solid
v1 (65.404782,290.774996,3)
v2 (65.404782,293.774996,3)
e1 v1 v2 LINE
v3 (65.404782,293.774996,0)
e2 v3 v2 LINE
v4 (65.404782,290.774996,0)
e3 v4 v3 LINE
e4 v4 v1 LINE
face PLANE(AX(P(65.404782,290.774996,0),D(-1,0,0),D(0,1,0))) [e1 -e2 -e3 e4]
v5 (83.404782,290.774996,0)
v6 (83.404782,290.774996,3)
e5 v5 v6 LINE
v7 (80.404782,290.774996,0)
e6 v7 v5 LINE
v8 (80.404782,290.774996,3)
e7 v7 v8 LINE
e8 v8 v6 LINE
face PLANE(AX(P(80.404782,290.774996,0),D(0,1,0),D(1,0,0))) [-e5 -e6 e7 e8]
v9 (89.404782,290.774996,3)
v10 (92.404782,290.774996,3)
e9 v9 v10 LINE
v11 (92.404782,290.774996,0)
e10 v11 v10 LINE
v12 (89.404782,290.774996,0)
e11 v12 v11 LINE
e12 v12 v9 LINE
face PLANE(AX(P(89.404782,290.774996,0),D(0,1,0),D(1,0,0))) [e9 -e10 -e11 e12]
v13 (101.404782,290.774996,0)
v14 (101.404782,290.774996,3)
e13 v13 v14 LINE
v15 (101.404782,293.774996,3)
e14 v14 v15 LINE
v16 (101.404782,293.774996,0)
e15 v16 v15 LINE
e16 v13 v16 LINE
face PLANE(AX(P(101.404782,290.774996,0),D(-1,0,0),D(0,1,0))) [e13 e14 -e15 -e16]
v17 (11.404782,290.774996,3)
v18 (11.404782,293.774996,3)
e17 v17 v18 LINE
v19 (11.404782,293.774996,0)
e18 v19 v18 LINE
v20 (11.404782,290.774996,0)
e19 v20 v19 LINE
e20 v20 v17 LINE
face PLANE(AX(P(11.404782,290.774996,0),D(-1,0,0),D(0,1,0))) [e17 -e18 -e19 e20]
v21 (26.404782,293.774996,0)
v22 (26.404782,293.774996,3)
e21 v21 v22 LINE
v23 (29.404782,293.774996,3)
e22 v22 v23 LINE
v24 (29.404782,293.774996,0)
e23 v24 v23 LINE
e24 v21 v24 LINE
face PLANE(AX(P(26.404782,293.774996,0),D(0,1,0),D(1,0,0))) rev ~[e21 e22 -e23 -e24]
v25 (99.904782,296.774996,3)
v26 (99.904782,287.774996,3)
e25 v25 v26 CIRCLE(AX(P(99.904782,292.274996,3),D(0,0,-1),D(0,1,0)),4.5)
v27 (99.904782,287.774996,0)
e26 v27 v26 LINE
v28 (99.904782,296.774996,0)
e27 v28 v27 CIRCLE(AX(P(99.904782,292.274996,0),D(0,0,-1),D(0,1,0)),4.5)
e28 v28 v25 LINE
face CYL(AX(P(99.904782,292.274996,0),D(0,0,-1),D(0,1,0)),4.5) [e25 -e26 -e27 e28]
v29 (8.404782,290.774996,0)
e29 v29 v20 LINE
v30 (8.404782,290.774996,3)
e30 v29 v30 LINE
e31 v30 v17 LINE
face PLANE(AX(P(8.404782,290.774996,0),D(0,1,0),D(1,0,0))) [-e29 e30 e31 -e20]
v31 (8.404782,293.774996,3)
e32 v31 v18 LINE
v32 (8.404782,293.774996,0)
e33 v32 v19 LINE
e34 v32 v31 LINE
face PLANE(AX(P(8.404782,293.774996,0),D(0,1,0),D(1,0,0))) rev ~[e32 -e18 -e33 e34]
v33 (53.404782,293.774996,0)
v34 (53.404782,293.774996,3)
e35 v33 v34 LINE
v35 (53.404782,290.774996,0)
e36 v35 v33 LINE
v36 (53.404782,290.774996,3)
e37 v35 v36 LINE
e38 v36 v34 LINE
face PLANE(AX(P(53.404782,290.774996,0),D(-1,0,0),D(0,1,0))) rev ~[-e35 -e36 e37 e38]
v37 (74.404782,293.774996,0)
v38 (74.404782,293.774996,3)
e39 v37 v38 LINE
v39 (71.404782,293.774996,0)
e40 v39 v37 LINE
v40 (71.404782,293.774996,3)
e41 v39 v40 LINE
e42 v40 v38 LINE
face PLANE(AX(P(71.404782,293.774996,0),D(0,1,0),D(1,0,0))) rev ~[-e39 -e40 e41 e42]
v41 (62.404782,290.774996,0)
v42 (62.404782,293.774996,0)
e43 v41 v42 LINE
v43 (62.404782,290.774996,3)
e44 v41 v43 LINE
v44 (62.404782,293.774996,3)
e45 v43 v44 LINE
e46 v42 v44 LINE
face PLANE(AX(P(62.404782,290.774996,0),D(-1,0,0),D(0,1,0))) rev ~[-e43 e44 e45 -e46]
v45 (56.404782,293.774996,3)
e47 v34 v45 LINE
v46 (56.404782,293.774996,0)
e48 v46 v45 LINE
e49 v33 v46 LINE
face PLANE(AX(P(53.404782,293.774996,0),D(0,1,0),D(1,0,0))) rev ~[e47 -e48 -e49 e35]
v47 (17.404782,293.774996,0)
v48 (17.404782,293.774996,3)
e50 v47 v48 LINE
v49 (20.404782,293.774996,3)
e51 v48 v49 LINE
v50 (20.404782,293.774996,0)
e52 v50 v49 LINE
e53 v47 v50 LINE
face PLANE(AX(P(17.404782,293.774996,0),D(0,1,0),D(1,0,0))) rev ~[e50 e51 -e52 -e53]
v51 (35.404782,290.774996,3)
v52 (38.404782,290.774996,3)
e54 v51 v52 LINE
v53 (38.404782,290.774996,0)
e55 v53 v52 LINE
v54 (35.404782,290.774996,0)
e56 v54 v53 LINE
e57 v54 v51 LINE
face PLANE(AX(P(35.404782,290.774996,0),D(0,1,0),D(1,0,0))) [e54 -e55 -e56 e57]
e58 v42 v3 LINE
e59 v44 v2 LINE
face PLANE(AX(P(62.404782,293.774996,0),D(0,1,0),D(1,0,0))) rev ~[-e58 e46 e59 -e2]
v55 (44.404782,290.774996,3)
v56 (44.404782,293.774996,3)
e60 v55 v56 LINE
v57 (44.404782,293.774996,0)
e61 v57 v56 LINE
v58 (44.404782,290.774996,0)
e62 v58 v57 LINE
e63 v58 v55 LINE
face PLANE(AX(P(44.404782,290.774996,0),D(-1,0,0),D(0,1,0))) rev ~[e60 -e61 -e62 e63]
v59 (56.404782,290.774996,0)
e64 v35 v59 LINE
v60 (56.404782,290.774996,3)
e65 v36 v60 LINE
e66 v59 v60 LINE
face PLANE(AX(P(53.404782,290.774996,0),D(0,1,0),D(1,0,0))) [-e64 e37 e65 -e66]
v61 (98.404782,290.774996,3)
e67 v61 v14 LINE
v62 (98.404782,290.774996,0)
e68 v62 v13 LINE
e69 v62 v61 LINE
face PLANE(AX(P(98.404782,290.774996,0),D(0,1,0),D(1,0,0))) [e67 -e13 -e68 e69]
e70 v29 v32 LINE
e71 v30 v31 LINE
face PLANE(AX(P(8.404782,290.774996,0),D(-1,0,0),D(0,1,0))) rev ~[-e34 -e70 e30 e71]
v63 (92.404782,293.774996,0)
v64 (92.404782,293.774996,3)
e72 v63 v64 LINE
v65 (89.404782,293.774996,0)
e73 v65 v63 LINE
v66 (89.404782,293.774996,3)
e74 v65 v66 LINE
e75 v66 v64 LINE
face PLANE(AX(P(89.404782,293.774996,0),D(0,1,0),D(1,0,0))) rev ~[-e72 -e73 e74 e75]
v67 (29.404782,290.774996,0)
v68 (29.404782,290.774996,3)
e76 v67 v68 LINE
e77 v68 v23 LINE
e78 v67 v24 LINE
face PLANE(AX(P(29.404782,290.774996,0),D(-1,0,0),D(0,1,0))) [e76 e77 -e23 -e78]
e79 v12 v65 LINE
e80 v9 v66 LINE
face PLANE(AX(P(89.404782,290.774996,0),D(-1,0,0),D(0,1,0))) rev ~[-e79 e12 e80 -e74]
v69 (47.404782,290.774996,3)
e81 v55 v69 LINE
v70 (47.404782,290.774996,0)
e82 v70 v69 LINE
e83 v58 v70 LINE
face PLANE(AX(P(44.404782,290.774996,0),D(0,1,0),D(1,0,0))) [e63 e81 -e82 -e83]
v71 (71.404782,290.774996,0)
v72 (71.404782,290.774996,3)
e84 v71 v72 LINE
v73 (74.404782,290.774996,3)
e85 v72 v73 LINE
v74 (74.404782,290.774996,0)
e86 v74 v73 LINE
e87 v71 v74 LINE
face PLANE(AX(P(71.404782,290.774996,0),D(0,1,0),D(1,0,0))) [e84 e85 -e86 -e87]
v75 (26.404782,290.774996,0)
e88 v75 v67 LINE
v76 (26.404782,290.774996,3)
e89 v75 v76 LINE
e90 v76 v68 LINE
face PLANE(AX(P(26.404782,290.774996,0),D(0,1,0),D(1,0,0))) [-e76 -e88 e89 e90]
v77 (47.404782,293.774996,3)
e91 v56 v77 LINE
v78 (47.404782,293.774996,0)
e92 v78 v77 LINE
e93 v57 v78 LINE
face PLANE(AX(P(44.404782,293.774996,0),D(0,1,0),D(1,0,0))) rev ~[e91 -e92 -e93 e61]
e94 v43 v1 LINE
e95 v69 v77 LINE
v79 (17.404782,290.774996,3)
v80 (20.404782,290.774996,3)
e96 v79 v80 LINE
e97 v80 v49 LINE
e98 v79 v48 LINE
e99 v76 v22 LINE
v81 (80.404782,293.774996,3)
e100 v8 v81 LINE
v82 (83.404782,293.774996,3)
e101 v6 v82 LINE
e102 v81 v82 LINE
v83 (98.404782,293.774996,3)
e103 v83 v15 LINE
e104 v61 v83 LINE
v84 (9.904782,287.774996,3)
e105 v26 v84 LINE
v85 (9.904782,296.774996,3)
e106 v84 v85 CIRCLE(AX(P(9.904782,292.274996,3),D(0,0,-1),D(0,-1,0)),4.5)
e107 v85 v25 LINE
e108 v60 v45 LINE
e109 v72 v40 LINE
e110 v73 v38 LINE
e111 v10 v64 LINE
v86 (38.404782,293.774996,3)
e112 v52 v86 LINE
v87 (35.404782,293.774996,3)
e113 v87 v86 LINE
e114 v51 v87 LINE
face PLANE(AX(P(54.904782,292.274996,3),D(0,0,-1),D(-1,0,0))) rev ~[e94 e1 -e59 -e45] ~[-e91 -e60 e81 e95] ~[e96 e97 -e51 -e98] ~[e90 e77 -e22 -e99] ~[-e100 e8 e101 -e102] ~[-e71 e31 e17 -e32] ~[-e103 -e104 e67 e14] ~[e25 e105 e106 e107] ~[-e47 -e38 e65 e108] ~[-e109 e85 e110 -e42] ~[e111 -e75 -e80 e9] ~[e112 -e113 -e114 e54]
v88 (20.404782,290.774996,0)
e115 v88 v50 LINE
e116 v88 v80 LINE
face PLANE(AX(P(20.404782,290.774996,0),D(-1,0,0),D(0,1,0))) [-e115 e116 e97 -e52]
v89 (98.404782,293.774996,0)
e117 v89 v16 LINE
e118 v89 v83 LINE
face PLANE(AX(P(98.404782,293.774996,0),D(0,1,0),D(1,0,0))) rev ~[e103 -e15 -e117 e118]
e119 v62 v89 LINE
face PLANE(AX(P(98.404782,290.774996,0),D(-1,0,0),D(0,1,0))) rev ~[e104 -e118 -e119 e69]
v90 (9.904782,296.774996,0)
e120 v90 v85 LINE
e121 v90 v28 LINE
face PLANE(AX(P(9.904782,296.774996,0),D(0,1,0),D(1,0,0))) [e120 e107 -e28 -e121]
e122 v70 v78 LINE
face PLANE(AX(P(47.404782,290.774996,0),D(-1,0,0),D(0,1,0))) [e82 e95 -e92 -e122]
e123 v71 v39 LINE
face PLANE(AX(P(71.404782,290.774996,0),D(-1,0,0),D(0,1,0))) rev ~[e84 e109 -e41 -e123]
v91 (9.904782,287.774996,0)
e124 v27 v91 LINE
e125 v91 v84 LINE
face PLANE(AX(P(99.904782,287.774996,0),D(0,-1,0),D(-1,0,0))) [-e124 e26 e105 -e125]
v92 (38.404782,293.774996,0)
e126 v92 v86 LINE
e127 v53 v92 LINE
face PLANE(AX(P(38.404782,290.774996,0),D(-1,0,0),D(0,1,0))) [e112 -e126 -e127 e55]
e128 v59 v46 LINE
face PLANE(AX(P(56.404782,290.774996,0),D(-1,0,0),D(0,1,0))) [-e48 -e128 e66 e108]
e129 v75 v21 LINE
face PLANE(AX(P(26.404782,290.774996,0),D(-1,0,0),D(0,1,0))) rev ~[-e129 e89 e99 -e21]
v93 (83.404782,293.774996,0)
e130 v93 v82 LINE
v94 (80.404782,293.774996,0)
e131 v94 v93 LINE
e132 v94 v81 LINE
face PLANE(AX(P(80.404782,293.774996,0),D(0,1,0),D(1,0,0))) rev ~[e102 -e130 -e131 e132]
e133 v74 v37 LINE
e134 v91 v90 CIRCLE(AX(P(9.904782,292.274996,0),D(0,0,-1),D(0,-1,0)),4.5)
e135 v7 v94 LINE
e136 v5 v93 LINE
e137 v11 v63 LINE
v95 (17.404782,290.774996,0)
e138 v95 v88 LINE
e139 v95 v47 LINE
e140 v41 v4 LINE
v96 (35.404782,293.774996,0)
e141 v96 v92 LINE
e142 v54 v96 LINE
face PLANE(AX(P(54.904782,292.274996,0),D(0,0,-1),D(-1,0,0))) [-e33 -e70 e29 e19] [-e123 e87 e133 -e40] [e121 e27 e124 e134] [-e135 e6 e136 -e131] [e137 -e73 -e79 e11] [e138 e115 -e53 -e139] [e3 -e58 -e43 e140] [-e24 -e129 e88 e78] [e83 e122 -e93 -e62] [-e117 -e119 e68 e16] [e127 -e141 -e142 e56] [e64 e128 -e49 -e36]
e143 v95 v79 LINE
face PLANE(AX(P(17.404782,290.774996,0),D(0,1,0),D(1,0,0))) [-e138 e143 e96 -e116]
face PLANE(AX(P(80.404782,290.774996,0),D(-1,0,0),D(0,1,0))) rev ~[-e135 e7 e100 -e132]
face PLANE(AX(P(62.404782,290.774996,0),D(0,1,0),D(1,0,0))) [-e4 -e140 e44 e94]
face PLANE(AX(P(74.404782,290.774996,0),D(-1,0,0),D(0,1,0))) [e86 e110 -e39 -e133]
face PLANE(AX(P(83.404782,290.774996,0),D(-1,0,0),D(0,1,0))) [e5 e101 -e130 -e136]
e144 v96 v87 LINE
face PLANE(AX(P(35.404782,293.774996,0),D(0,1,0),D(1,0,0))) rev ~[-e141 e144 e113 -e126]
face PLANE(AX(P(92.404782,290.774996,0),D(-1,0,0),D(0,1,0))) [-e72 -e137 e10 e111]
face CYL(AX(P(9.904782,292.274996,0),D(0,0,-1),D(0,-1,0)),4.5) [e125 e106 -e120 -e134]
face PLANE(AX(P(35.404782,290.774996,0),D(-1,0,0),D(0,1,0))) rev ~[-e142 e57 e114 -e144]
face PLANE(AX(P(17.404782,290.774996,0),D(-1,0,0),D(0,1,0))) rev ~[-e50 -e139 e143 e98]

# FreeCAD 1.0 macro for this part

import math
import FreeCAD as App
import Part
import Sketcher
from FreeCAD import Vector
Q = App.Units.Quantity


def add_polygon(sketch, points):
    """Adds a closed chain of lines whose ends are joined by coincident constraints."""
    first, n = sketch.GeometryCount, len(points)
    for a, b in zip(points, points[1:] + points[:1]):
        sketch.addGeometry(Part.LineSegment(App.Vector(*a, 0), App.Vector(*b, 0)), False)
    for i in range(n):
        sketch.addConstraint(Sketcher.Constraint("Coincident", first + i, 2, first + (i + 1) % n, 1))

doc = App.newDocument("Part")
body = doc.addObject("PartDesign::Body", "Body")

# Sketch on XY plane
sketch1 = doc.addObject("Sketcher::SketchObject", "Sketch")
body.addObject(sketch1)
sketch1.AttachmentSupport = (doc.XY_Plane, [""])
sketch1.MapMode = "FlatFace"
sketch1.addGeometry(Part.LineSegment(Vector(99.9, 296.8, 0), Vector(9.9, 296.8, 0)), False)  # 0
sketch1.addGeometry(Part.ArcOfCircle(Part.Circle(Vector(9.9, 292.3, 0), Vector(0, 0, 1), 4.5), math.radians(90), math.radians(270)), False)  # 1
sketch1.addGeometry(Part.LineSegment(Vector(9.9, 287.8, 0), Vector(99.9, 287.8, 0)), False)  # 2
sketch1.addGeometry(Part.ArcOfCircle(Part.Circle(Vector(99.9, 292.3, 0), Vector(0, 0, 1), 4.5), math.radians(-90), math.radians(90)), False)  # 3
add_polygon(sketch1, [(98.4, 290.8), (98.4, 293.8), (101.4, 293.8), (101.4, 290.8)])  # lines 4-7
add_polygon(sketch1, [(89.4, 290.8), (89.4, 293.8), (92.4, 293.8), (92.4, 290.8)])  # lines 8-11
add_polygon(sketch1, [(80.4, 290.8), (80.4, 293.8), (83.4, 293.8), (83.4, 290.8)])  # lines 12-15
add_polygon(sketch1, [(71.4, 290.8), (71.4, 293.8), (74.4, 293.8), (74.4, 290.8)])  # lines 16-19
add_polygon(sketch1, [(62.4, 290.8), (62.4, 293.8), (65.4, 293.8), (65.4, 290.8)])  # lines 20-23
add_polygon(sketch1, [(53.4, 290.8), (53.4, 293.8), (56.4, 293.8), (56.4, 290.8)])  # lines 24-27
add_polygon(sketch1, [(44.4, 290.8), (44.4, 293.8), (47.4, 293.8), (47.4, 290.8)])  # lines 28-31
add_polygon(sketch1, [(35.4, 290.8), (35.4, 293.8), (38.4, 293.8), (38.4, 290.8)])  # lines 32-35
add_polygon(sketch1, [(26.4, 290.8), (26.4, 293.8), (29.4, 293.8), (29.4, 290.8)])  # lines 36-39
add_polygon(sketch1, [(17.4, 290.8), (17.4, 293.8), (20.4, 293.8), (20.4, 290.8)])  # lines 40-43
add_polygon(sketch1, [(8.4, 290.8), (8.4, 293.8), (11.4, 293.8), (11.4, 290.8)])  # lines 44-47
sketch1.addConstraint(Sketcher.Constraint("Tangent", 0, 2, 1, 1))
sketch1.addConstraint(Sketcher.Constraint("Tangent", 1, 2, 2, 1))
sketch1.addConstraint(Sketcher.Constraint("Tangent", 2, 2, 3, 1))
sketch1.addConstraint(Sketcher.Constraint("Tangent", 3, 2, 0, 1))
sketch1.addConstraint(Sketcher.Constraint("Horizontal", 0))
sketch1.addConstraint(Sketcher.Constraint("Horizontal", 2))
sketch1.addConstraint(Sketcher.Constraint("Vertical", 4))
sketch1.addConstraint(Sketcher.Constraint("Horizontal", 5))
sketch1.addConstraint(Sketcher.Constraint("Vertical", 6))
sketch1.addConstraint(Sketcher.Constraint("Horizontal", 7))
sketch1.addConstraint(Sketcher.Constraint("Vertical", 8))
sketch1.addConstraint(Sketcher.Constraint("Horizontal", 9))
sketch1.addConstraint(Sketcher.Constraint("Vertical", 10))
sketch1.addConstraint(Sketcher.Constraint("Horizontal", 11))
sketch1.addConstraint(Sketcher.Constraint("Vertical", 12))
sketch1.addConstraint(Sketcher.Constraint("Horizontal", 13))
sketch1.addConstraint(Sketcher.Constraint("Vertical", 14))
sketch1.addConstraint(Sketcher.Constraint("Horizontal", 15))
sketch1.addConstraint(Sketcher.Constraint("Vertical", 16))
sketch1.addConstraint(Sketcher.Constraint("Horizontal", 17))
sketch1.addConstraint(Sketcher.Constraint("Vertical", 18))
sketch1.addConstraint(Sketcher.Constraint("Horizontal", 19))
sketch1.addConstraint(Sketcher.Constraint("Vertical", 20))
sketch1.addConstraint(Sketcher.Constraint("Horizontal", 21))
sketch1.addConstraint(Sketcher.Constraint("Vertical", 22))
sketch1.addConstraint(Sketcher.Constraint("Horizontal", 23))
sketch1.addConstraint(Sketcher.Constraint("Vertical", 24))
sketch1.addConstraint(Sketcher.Constraint("Horizontal", 25))
sketch1.addConstraint(Sketcher.Constraint("Vertical", 26))
sketch1.addConstraint(Sketcher.Constraint("Horizontal", 27))
sketch1.addConstraint(Sketcher.Constraint("Vertical", 28))
sketch1.addConstraint(Sketcher.Constraint("Horizontal", 29))
sketch1.addConstraint(Sketcher.Constraint("Vertical", 30))
sketch1.addConstraint(Sketcher.Constraint("Horizontal", 31))
sketch1.addConstraint(Sketcher.Constraint("Vertical", 32))
sketch1.addConstraint(Sketcher.Constraint("Horizontal", 33))
sketch1.addConstraint(Sketcher.Constraint("Vertical", 34))
sketch1.addConstraint(Sketcher.Constraint("Horizontal", 35))
sketch1.addConstraint(Sketcher.Constraint("Vertical", 36))
sketch1.addConstraint(Sketcher.Constraint("Horizontal", 37))
sketch1.addConstraint(Sketcher.Constraint("Vertical", 38))
sketch1.addConstraint(Sketcher.Constraint("Horizontal", 39))
sketch1.addConstraint(Sketcher.Constraint("Vertical", 40))
sketch1.addConstraint(Sketcher.Constraint("Horizontal", 41))
sketch1.addConstraint(Sketcher.Constraint("Vertical", 42))
sketch1.addConstraint(Sketcher.Constraint("Horizontal", 43))
sketch1.addConstraint(Sketcher.Constraint("Vertical", 44))
sketch1.addConstraint(Sketcher.Constraint("Horizontal", 45))
sketch1.addConstraint(Sketcher.Constraint("Vertical", 46))
sketch1.addConstraint(Sketcher.Constraint("Horizontal", 47))
sketch1.addConstraint(Sketcher.Constraint("Horizontal", 5, 2, 8, 2))
sketch1.addConstraint(Sketcher.Constraint("Horizontal", 7, 2, 10, 2))
sketch1.addConstraint(Sketcher.Constraint("Horizontal", 9, 2, 12, 2))
sketch1.addConstraint(Sketcher.Constraint("Horizontal", 11, 2, 14, 2))
sketch1.addConstraint(Sketcher.Constraint("Horizontal", 13, 2, 16, 2))
sketch1.addConstraint(Sketcher.Constraint("Horizontal", 15, 2, 18, 2))
sketch1.addConstraint(Sketcher.Constraint("Horizontal", 17, 2, 20, 2))
sketch1.addConstraint(Sketcher.Constraint("Horizontal", 19, 2, 22, 2))
sketch1.addConstraint(Sketcher.Constraint("Horizontal", 21, 2, 24, 2))
sketch1.addConstraint(Sketcher.Constraint("Horizontal", 23, 2, 26, 2))
sketch1.addConstraint(Sketcher.Constraint("Horizontal", 25, 2, 28, 2))
sketch1.addConstraint(Sketcher.Constraint("Horizontal", 27, 2, 30, 2))
sketch1.addConstraint(Sketcher.Constraint("Horizontal", 29, 2, 32, 2))
sketch1.addConstraint(Sketcher.Constraint("Horizontal", 31, 2, 34, 2))
sketch1.addConstraint(Sketcher.Constraint("Horizontal", 33, 2, 36, 2))
sketch1.addConstraint(Sketcher.Constraint("Horizontal", 35, 2, 38, 2))
sketch1.addConstraint(Sketcher.Constraint("Horizontal", 37, 2, 40, 2))
sketch1.addConstraint(Sketcher.Constraint("Horizontal", 39, 2, 42, 2))
sketch1.addConstraint(Sketcher.Constraint("Horizontal", 41, 2, 44, 2))
sketch1.addConstraint(Sketcher.Constraint("Horizontal", 43, 2, 46, 2))
sketch1.addConstraint(Sketcher.Constraint("Equal", 7, 9))
sketch1.addConstraint(Sketcher.Constraint("Equal", 11, 13))
sketch1.addConstraint(Sketcher.Constraint("Equal", 15, 17))
sketch1.addConstraint(Sketcher.Constraint("Equal", 19, 21))
sketch1.addConstraint(Sketcher.Constraint("Equal", 23, 25))
sketch1.addConstraint(Sketcher.Constraint("Equal", 27, 29))
sketch1.addConstraint(Sketcher.Constraint("Equal", 31, 33))
sketch1.addConstraint(Sketcher.Constraint("Equal", 35, 37))
sketch1.addConstraint(Sketcher.Constraint("Equal", 39, 41))
sketch1.addConstraint(Sketcher.Constraint("Equal", 43, 45))
sketch1.addConstraint(Sketcher.Constraint("Equal", 47, 4))
sketch1.addConstraint(Sketcher.Constraint("Radius", 1, Q("4.5 mm")))
sketch1.addConstraint(Sketcher.Constraint("DistanceX", 0, 2, 0, 1, Q("90 mm")))
sketch1.addConstraint(Sketcher.Constraint("DistanceX", 5, 1, 5, 2, Q("3 mm")))
sketch1.addConstraint(Sketcher.Constraint("DistanceY", 4, 2, 3, 2, Q("3 mm")))
sketch1.addConstraint(Sketcher.Constraint("DistanceX", 8, 2, 4, 2, Q("9 mm")))
sketch1.addConstraint(Sketcher.Constraint("DistanceX", 12, 2, 8, 2, Q("9 mm")))
sketch1.addConstraint(Sketcher.Constraint("DistanceX", 16, 2, 12, 2, Q("9 mm")))
sketch1.addConstraint(Sketcher.Constraint("DistanceX", 20, 2, 16, 2, Q("9 mm")))
sketch1.addConstraint(Sketcher.Constraint("DistanceX", 24, 2, 20, 2, Q("9 mm")))
sketch1.addConstraint(Sketcher.Constraint("DistanceX", 28, 2, 24, 2, Q("9 mm")))
sketch1.addConstraint(Sketcher.Constraint("DistanceX", 32, 2, 28, 2, Q("9 mm")))
sketch1.addConstraint(Sketcher.Constraint("DistanceX", 36, 2, 32, 2, Q("9 mm")))
sketch1.addConstraint(Sketcher.Constraint("DistanceX", 40, 2, 36, 2, Q("9 mm")))
sketch1.addConstraint(Sketcher.Constraint("DistanceX", 44, 2, 40, 2, Q("9 mm")))
sketch1.addConstraint(Sketcher.Constraint("DistanceX", 4, 2, 3, 3, Q("1.5 mm")))
sketch1.addConstraint(Sketcher.Constraint("DistanceX", -1, 1, 1, 3, Q("9.904782 mm")))
sketch1.addConstraint(Sketcher.Constraint("DistanceY", -1, 1, 1, 3, Q("292.274996 mm")))
pad1 = doc.addObject("PartDesign::Pad", "Pad")
body.addObject(pad1)
pad1.Profile = sketch1
pad1.Length = 3

doc.recompute()
